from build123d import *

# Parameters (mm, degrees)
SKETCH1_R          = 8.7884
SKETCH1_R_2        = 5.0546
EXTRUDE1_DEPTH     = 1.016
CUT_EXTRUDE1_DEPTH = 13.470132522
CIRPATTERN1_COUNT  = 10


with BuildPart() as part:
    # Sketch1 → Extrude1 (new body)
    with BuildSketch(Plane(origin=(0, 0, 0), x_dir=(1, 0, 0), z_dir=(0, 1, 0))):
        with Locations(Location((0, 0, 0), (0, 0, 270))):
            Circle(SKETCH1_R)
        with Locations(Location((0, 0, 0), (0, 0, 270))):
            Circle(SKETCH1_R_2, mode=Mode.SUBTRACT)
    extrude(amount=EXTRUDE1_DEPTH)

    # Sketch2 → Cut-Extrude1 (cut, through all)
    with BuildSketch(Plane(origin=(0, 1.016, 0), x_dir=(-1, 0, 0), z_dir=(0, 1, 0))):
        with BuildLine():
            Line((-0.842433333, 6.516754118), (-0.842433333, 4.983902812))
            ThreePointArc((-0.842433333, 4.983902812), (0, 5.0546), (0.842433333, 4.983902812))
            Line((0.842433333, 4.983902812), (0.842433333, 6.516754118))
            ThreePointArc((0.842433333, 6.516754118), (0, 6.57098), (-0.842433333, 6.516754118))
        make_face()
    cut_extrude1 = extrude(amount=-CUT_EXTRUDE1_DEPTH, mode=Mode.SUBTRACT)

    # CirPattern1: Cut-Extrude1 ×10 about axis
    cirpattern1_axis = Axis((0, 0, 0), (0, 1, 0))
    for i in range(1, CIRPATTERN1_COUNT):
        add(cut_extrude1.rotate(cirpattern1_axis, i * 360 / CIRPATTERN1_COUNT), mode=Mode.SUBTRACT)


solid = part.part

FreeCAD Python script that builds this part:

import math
import FreeCAD as App
import Part
import Sketcher

V = App.Vector
Q = App.Units.Quantity

doc = App.newDocument("Part")
body = doc.addObject("PartDesign::Body", "Body")

# Sketch on XZ plane
sketch1 = doc.addObject("Sketcher::SketchObject", "Sketch")
body.addObject(sketch1)
sketch1.AttachmentSupport = (doc.XZ_Plane, [""])
sketch1.MapMode = "FlatFace"
sketch1.addGeometry(Part.Circle(V(0, 0, 0), V(0, 0, 1), 9), False)
sketch1.addGeometry(Part.Circle(V(0, 0, 0), V(0, 0, 1), 5), False)
sketch1.addConstraint(Sketcher.Constraint("Coincident", 0, 3, -1, 1))
sketch1.addConstraint(Sketcher.Constraint("Coincident", 1, 3, -1, 1))
sketch1.addConstraint(Sketcher.Constraint("Diameter", 0, Q("0.692 in")))
sketch1.addConstraint(Sketcher.Constraint("Diameter", 1, Q("0.398 in")))
pad1 = doc.addObject("PartDesign::Pad", "Pad")
body.addObject(pad1)
pad1.Profile = sketch1
pad1.Length = Q("0.04 in")
pad1.Reversed = True

# Sketch on XZ plane
sketch2 = doc.addObject("Sketcher::SketchObject", "Sketch001")
body.addObject(sketch2)
sketch2.AttachmentSupport = (doc.XZ_Plane, [""])
sketch2.MapMode = "FlatFace"
sketch2.AttachmentOffset = App.Placement(V(0, 0, -0.04 * 25.4), App.Rotation())
sketch2.addGeometry(Part.LineSegment(V(0.8, 6.5, 0), V(0.8, 5, 0)), False)
sketch2.addGeometry(Part.ArcOfCircle(Part.Circle(V(0, 0, 0), V(0, 0, 1), 5.1), math.radians(80.41), math.radians(99.59)), False)
sketch2.addGeometry(Part.LineSegment(V(-0.8, 5, 0), V(-0.8, 6.5, 0)), False)
sketch2.addGeometry(Part.ArcOfCircle(Part.Circle(V(0, 0, 0), V(0, 0, 1), 6.6), math.radians(82.63), math.radians(97.37)), False)
sketch2.addConstraint(Sketcher.Constraint("Coincident", 0, 2, 1, 1))
sketch2.addConstraint(Sketcher.Constraint("Coincident", 1, 2, 2, 1))
sketch2.addConstraint(Sketcher.Constraint("Coincident", 2, 2, 3, 2))
sketch2.addConstraint(Sketcher.Constraint("Coincident", 3, 1, 0, 1))
sketch2.addConstraint(Sketcher.Constraint("Vertical", 0))
sketch2.addConstraint(Sketcher.Constraint("Vertical", 2))
sketch2.addConstraint(Sketcher.Constraint("Coincident", 1, 3, -1, 1))
sketch2.addConstraint(Sketcher.Constraint("Coincident", 3, 3, -1, 1))
sketch2.addConstraint(Sketcher.Constraint("Horizontal", 0, 2, 1, 2))
sketch2.addConstraint(Sketcher.Constraint("Radius", 1, Q("0.199 in")))
sketch2.addConstraint(Sketcher.Constraint("Radius", 3, Q("0.2587 in")))
sketch2.addConstraint(Sketcher.Constraint("DistanceY", 0, 2, 0, 1, 1.532851))
pocket1 = doc.addObject("PartDesign::Pocket", "Pocket")
body.addObject(pocket1)
pocket1.Profile = sketch2
pocket1.Type = "ThroughAll"
pocket1.Reversed = True
doc.recompute()

polarpattern = doc.addObject("PartDesign::PolarPattern", "PolarPattern")
body.addObject(polarpattern)
polarpattern.Originals = [pocket1]
polarpattern.Axis = (doc.Y_Axis, [""])
polarpattern.Angle = 360
polarpattern.Occurrences = 10
body.Tip = polarpattern

doc.recompute()
